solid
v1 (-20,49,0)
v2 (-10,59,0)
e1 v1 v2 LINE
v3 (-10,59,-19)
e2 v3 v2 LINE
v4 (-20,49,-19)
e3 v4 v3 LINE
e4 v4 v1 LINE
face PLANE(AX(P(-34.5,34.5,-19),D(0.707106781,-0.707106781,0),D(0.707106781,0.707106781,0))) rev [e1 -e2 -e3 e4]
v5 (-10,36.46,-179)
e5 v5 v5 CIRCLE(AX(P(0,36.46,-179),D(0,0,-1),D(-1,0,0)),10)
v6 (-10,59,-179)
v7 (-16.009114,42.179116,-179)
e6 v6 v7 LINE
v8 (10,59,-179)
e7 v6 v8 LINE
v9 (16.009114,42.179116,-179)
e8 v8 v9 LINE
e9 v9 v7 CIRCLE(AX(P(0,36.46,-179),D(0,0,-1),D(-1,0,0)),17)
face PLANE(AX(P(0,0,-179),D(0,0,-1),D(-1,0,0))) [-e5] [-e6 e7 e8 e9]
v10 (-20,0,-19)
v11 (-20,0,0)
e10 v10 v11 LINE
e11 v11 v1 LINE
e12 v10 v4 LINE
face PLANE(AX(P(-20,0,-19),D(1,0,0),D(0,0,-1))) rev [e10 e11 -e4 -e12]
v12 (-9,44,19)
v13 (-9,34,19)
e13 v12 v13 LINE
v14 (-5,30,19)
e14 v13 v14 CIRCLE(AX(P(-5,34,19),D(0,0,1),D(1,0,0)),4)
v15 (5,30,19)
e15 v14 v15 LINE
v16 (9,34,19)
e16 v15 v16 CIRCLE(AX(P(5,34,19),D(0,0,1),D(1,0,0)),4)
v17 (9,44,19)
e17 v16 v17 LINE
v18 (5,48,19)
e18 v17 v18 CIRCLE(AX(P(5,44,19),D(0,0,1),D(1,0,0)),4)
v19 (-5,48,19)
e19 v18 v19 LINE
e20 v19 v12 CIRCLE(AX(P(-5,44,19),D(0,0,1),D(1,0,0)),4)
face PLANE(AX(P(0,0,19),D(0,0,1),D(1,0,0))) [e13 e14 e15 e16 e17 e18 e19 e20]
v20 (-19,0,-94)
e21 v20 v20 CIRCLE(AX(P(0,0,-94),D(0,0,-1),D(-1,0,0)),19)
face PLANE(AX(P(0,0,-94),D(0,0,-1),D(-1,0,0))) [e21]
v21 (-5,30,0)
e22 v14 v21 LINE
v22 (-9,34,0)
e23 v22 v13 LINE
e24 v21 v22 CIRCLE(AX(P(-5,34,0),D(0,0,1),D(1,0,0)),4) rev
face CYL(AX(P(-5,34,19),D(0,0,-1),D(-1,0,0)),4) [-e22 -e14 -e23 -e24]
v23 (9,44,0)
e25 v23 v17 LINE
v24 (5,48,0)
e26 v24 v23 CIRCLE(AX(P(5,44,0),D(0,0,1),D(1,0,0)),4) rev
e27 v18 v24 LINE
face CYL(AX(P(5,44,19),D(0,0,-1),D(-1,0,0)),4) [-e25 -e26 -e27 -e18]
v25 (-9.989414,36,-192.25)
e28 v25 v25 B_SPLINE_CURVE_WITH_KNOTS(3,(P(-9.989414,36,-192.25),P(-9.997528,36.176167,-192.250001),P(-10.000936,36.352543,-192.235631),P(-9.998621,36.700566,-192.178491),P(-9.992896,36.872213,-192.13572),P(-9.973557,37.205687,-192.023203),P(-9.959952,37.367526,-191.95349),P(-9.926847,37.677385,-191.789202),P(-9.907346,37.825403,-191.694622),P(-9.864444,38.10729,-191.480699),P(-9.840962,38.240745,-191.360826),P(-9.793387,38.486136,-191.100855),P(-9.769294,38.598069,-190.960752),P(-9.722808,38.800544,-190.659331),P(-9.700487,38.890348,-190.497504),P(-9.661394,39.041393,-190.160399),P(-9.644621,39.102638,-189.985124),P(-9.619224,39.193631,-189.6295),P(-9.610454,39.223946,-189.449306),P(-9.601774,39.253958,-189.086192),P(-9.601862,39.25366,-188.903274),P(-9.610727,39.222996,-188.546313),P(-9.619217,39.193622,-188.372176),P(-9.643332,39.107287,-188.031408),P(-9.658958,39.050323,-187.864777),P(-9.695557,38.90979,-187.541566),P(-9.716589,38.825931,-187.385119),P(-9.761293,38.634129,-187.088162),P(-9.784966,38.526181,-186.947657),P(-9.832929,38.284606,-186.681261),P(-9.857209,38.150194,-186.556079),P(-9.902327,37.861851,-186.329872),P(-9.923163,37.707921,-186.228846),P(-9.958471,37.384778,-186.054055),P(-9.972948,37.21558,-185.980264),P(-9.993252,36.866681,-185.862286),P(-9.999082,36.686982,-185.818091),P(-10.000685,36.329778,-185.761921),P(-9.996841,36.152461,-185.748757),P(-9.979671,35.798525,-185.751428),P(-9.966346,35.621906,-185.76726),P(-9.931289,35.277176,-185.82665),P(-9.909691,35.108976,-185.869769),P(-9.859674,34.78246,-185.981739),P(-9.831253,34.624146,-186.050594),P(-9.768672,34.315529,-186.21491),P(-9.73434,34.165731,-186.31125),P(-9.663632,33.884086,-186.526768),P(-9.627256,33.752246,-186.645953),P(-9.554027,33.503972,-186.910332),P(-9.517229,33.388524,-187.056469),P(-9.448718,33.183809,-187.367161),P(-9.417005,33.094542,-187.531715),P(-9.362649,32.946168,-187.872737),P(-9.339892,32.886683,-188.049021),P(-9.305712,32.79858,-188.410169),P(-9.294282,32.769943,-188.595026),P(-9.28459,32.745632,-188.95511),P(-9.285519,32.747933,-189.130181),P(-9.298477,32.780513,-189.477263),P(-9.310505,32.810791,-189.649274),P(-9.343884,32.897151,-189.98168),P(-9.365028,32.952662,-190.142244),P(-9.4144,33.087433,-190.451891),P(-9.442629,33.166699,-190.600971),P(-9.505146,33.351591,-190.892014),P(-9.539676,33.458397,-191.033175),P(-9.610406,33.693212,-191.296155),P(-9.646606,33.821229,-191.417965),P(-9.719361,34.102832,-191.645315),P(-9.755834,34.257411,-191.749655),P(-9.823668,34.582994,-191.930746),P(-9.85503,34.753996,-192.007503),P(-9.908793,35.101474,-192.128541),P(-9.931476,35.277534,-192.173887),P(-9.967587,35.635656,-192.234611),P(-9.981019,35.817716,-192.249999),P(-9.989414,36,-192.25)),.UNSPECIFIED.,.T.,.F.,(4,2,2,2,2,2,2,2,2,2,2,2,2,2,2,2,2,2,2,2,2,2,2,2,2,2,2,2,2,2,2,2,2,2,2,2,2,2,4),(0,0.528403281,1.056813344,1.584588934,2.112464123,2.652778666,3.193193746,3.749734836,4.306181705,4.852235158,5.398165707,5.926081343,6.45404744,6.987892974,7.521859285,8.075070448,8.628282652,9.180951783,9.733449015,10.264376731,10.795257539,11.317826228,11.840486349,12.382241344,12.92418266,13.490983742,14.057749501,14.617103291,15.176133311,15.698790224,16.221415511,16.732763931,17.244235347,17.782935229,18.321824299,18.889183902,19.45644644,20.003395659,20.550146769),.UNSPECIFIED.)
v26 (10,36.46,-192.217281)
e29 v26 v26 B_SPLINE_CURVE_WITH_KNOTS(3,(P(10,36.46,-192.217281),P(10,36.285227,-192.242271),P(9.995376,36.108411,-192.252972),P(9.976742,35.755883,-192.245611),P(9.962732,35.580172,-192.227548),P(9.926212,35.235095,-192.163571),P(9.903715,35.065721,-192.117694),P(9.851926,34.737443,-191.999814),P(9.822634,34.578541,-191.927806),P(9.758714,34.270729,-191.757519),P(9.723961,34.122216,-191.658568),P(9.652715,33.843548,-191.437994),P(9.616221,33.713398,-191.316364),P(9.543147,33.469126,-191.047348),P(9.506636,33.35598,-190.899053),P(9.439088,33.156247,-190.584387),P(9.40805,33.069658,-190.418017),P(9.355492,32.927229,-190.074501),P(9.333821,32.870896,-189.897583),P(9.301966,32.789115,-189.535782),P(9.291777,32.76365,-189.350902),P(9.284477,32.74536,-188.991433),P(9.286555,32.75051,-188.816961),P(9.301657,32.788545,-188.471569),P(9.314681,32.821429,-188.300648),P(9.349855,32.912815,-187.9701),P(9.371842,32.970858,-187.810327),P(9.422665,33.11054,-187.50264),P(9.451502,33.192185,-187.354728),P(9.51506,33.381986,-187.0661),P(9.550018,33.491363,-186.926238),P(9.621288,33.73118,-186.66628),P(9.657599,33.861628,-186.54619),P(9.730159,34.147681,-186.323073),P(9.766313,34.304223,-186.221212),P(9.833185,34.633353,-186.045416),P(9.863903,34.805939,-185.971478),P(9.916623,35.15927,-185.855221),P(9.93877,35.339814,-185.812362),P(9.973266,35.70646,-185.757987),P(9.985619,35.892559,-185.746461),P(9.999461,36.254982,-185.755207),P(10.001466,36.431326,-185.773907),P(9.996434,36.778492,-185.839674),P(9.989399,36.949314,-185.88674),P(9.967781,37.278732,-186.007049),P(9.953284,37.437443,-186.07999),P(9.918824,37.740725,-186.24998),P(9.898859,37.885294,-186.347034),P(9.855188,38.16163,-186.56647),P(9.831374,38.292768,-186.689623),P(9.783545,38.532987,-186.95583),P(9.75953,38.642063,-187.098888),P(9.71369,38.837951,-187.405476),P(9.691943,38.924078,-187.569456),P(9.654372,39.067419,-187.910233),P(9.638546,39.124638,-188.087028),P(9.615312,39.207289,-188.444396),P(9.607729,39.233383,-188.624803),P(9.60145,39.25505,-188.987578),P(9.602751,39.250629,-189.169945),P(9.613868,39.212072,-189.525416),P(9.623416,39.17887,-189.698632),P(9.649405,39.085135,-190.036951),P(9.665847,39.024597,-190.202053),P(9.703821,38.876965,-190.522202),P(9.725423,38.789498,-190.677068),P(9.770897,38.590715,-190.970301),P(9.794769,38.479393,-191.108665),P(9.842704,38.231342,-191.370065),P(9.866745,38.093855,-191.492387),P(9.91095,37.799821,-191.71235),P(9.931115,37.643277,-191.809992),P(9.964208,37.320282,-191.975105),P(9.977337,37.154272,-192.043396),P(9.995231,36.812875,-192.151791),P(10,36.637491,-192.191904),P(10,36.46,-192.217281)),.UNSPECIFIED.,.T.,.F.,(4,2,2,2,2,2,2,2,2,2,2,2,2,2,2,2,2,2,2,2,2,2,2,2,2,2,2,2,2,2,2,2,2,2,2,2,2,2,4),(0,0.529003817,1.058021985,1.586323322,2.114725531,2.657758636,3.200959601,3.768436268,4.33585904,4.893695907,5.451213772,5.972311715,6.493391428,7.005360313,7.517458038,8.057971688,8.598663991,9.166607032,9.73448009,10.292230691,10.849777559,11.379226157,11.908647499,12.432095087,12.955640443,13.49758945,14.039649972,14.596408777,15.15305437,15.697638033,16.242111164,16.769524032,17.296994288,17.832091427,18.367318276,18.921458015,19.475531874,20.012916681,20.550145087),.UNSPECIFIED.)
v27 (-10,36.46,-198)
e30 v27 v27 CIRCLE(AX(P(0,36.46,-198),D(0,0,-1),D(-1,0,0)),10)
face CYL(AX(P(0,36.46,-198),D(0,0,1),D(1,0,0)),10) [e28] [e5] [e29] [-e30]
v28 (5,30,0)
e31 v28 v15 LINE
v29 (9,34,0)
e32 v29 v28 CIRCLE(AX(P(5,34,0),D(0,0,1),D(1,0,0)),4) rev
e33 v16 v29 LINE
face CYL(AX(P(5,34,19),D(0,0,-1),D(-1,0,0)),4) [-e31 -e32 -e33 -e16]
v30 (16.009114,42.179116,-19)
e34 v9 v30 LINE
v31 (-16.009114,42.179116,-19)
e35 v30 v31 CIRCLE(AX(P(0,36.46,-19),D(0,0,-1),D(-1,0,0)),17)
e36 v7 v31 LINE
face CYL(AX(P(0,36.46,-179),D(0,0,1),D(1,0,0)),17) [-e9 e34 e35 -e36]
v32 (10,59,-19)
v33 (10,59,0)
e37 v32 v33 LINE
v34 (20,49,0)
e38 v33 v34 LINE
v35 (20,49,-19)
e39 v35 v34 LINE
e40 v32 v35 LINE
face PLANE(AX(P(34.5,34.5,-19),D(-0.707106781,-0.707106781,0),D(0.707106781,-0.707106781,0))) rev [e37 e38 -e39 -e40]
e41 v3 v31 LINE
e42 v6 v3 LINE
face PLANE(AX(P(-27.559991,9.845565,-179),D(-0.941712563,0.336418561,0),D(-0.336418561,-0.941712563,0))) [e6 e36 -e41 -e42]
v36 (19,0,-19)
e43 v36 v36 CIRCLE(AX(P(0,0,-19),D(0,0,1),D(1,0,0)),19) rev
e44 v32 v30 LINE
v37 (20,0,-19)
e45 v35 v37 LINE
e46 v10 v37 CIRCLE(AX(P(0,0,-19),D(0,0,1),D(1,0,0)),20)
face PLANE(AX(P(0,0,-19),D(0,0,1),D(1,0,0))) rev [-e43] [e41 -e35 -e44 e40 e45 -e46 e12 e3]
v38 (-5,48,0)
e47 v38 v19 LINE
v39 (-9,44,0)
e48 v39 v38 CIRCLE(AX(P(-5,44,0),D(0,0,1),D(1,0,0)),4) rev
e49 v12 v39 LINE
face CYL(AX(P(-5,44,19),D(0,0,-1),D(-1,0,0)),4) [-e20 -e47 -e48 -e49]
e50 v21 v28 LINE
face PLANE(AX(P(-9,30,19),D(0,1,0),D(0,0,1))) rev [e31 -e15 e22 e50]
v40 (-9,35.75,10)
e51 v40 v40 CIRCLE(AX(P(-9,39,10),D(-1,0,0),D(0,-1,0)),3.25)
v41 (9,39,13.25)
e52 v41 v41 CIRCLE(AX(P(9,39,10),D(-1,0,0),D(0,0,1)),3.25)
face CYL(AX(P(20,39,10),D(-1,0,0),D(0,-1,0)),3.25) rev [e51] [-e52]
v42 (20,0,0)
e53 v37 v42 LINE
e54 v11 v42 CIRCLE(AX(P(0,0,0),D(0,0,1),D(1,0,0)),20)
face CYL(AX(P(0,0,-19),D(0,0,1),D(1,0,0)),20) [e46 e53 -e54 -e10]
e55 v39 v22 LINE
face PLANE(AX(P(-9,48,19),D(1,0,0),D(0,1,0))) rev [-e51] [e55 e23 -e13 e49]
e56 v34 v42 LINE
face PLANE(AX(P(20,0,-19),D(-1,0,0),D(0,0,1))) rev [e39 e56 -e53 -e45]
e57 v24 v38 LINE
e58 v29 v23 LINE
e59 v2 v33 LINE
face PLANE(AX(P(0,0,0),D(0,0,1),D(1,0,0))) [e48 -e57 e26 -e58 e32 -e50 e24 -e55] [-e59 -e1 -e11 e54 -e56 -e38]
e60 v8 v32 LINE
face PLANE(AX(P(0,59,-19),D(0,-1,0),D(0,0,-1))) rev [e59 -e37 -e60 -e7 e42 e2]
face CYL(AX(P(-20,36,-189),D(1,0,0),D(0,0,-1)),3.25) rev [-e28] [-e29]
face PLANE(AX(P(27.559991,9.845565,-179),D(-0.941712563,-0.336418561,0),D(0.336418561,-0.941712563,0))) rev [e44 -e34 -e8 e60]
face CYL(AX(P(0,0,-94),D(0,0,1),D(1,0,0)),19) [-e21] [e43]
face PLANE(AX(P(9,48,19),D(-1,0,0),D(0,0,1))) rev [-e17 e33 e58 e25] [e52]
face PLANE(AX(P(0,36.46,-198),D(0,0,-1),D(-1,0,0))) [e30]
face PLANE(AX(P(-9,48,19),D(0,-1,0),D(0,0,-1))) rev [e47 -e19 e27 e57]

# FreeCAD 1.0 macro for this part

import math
import FreeCAD as App
import Part
import Sketcher


def edges_at(feature, points):
    """Names of the edges that pass closest to the given points."""
    edges = feature.Shape.Edges
    near = lambda p: min(range(len(edges)), key=lambda i: edges[i].distToShape(Part.Vertex(*p))[0])
    return sorted({f"Edge{near(p) + 1}" for p in points})


def add_polygon(sketch, points):
    """Adds a closed chain of lines whose ends are joined by coincident constraints."""
    first, n = sketch.GeometryCount, len(points)
    for a, b in zip(points, points[1:] + points[:1]):
        sketch.addGeometry(Part.LineSegment(App.Vector(*a, 0), App.Vector(*b, 0)), False)
    for i in range(n):
        sketch.addConstraint(Sketcher.Constraint("Coincident", first + i, 2, first + (i + 1) % n, 1))

doc = App.newDocument("Part")
body = doc.addObject("PartDesign::Body", "Body")

# Sketch on XY plane
sketch1 = body.newObject("Sketcher::SketchObject", "Sketch")
sketch1.AttachmentSupport = (doc.getObject("XY_Plane"), [""])
sketch1.MapMode = "FlatFace"
sketch1.addGeometry([
    Part.LineSegment(App.Vector(-20, 49, 0), App.Vector(-20, 0, 0)),  # 0
    Part.ArcOfCircle(Part.Circle(App.Vector(0, 0, 0), App.Vector(0, 0, 1), 20), math.radians(180), math.radians(360)),  # 1
    Part.LineSegment(App.Vector(20, 0, 0), App.Vector(20, 49, 0)),  # 2
    Part.LineSegment(App.Vector(20, 49, 0), App.Vector(10, 59, 0)),  # 3
    Part.LineSegment(App.Vector(10, 59, 0), App.Vector(-10, 59, 0)),  # 4
    Part.LineSegment(App.Vector(-10, 59, 0), App.Vector(-20, 49, 0)),  # 5
], False)
sketch1.addConstraint([
    Sketcher.Constraint("Tangent", 0, 2, 1, 1),
    Sketcher.Constraint("Tangent", 1, 2, 2, 1),
    Sketcher.Constraint("Coincident", 2, 2, 3, 1),
    Sketcher.Constraint("Coincident", 3, 2, 4, 1),
    Sketcher.Constraint("Coincident", 4, 2, 5, 1),
    Sketcher.Constraint("Coincident", 5, 2, 0, 1),
    Sketcher.Constraint("Vertical", 0),
    Sketcher.Constraint("Vertical", 2),
    Sketcher.Constraint("Horizontal", 4),
    Sketcher.Constraint("Coincident", 1, 3, -1, 1),
    Sketcher.Constraint("Perpendicular", 3, 5),
    Sketcher.Constraint("Horizontal", 2, 2, 5, 2),
    Sketcher.Constraint("Equal", 3, 5),
    Sketcher.Constraint("Radius", 1, 20.0),
    Sketcher.Constraint("DistanceX", 4, 2, 4, 1, 20.0),
    Sketcher.Constraint("DistanceY", 0, 2, 0, 1, 49.0),
])
pad1 = body.newObject("PartDesign::Pad", "Pad")
pad1.Profile = sketch1
pad1.Length = 19
pad1.Reversed = True

# Sketch on XY plane
sketch2 = body.newObject("Sketcher::SketchObject", "Sketch001")
sketch2.AttachmentSupport = (doc.getObject("XY_Plane"), [""])
sketch2.MapMode = "FlatFace"
sketch2.AttachmentOffset = App.Placement(App.Vector(0, 0, -19), App.Rotation())
sketch2.addGeometry([
    Part.LineSegment(App.Vector(-10, 59, 0), App.Vector(10, 59, 0)),
    Part.LineSegment(App.Vector(10, 59, 0), App.Vector(16, 42, 0)),
    Part.ArcOfCircle(Part.Circle(App.Vector(0, 36, 0), App.Vector(0, 0, 1), 17), math.radians(160), math.radians(380)),
    Part.LineSegment(App.Vector(-16, 42, 0), App.Vector(-10, 59, 0)),
], False)
sketch2.addConstraint([
    Sketcher.Constraint("Coincident", 0, 2, 1, 1),
    Sketcher.Constraint("Tangent", 1, 2, 2, 2),
    Sketcher.Constraint("Tangent", 2, 1, 3, 1),
    Sketcher.Constraint("Coincident", 3, 2, 0, 1),
    Sketcher.Constraint("Horizontal", 0),
    Sketcher.Constraint("Symmetric", 1, 2, 2, 1, -2),
    Sketcher.Constraint("Radius", 2, 17.0),
    Sketcher.Constraint("DistanceX", 0, 1, 0, 2, 20.0),
    Sketcher.Constraint("DistanceY", -1, 1, 0, 2, 59.0),
    Sketcher.Constraint("DistanceY", -1, 1, 2, 3, 36.46),
])
pad2 = body.newObject("PartDesign::Pad", "Pad001")
pad2.Profile = sketch2
pad2.Length = 160
pad2.Reversed = True

# Sketch on XY plane
sketch3 = body.newObject("Sketcher::SketchObject", "Sketch002")
sketch3.AttachmentSupport = (doc.getObject("XY_Plane"), [""])
sketch3.MapMode = "FlatFace"
sketch3.AttachmentOffset = App.Placement(App.Vector(0, 0, -179), App.Rotation())
sketch3.addGeometry(Part.Circle(App.Vector(0, 36, 0), App.Vector(0, 0, 1), 10), False)
sketch3.addConstraint([
    Sketcher.Constraint("PointOnObject", 0, 3, -2),
    Sketcher.Constraint("Diameter", 0, 20.0),
    Sketcher.Constraint("DistanceY", -1, 1, 0, 3, 36.46),
])
pad3 = body.newObject("PartDesign::Pad", "Pad002")
pad3.Profile = sketch3
pad3.Length = 19
pad3.Reversed = True

# Sketch on YZ plane
sketch4 = body.newObject("Sketcher::SketchObject", "Sketch003")
sketch4.AttachmentSupport = (doc.getObject("YZ_Plane"), [""])
sketch4.MapMode = "FlatFace"
sketch4.addGeometry(Part.Circle(App.Vector(36, -189, 0), App.Vector(0, 0, 1), 3.2), False)
sketch4.addConstraint([
    Sketcher.Constraint("Diameter", 0, 6.5),
    Sketcher.Constraint("DistanceX", -1, 1, 0, 3, 36.0),
    Sketcher.Constraint("DistanceY", 0, 3, -1, 1, 189.0),
])
pocket1 = body.newObject("PartDesign::Pocket", "Pocket")
pocket1.Profile = sketch4
pocket1.Type = "ThroughAll"
pocket1.Midplane = True

# Sketch on XY plane
sketch5 = body.newObject("Sketcher::SketchObject", "Sketch004")
sketch5.AttachmentSupport = (doc.getObject("XY_Plane"), [""])
sketch5.MapMode = "FlatFace"
sketch5.AttachmentOffset = App.Placement(App.Vector(0, 0, -19), App.Rotation())
sketch5.addGeometry(Part.Circle(App.Vector(0, 0, 0), App.Vector(0, 0, 1), 19), False)
sketch5.addConstraint([
    Sketcher.Constraint("Coincident", 0, 3, -1, 1),
    Sketcher.Constraint("Diameter", 0, 38.0),
])
pad4 = body.newObject("PartDesign::Pad", "Pad003")
pad4.Profile = sketch5
pad4.Length = 75
pad4.Reversed = True

# Sketch on XY plane
sketch6 = body.newObject("Sketcher::SketchObject", "Sketch005")
sketch6.AttachmentSupport = (doc.getObject("XY_Plane"), [""])
sketch6.MapMode = "FlatFace"
add_polygon(sketch6, [(-9, 48), (-9, 30), (9, 30), (9, 48)])  # lines 0-3
sketch6.addConstraint([
    Sketcher.Constraint("Vertical", 0),
    Sketcher.Constraint("Horizontal", 1),
    Sketcher.Constraint("Vertical", 2),
    Sketcher.Constraint("Horizontal", 3),
    Sketcher.Constraint("Equal", 3, 0),
    Sketcher.Constraint("DistanceX", 1, 1, 1, 2, 18.0),
    Sketcher.Constraint("DistanceX", 0, 2, -1, 1, 9.0),
    Sketcher.Constraint("DistanceY", -1, 1, 0, 2, 30.0),
])
pad5 = body.newObject("PartDesign::Pad", "Pad004")
pad5.Profile = sketch6
pad5.Length = 19
doc.recompute()

fillet = body.newObject("PartDesign::Fillet", "Fillet")
fillet.Base = (pad5, edges_at(pad5, [
    (9, 30, 9.5),
    (9, 48, 9.5),
    (-9, 48, 9.5),
    (-9, 30, 9.5),
]))
fillet.Radius = 4

# Sketch on YZ plane
sketch7 = body.newObject("Sketcher::SketchObject", "Sketch006")
sketch7.AttachmentSupport = (doc.getObject("YZ_Plane"), [""])
sketch7.MapMode = "FlatFace"
sketch7.AttachmentOffset = App.Placement(App.Vector(0, 0, -9), App.Rotation())
sketch7.addGeometry(Part.Circle(App.Vector(39, 10, 0), App.Vector(0, 0, 1), 3.2), False)
sketch7.addConstraint([
    Sketcher.Constraint("Diameter", 0, 6.5),
    Sketcher.Constraint("DistanceX", -1, 1, 0, 3, 39.0),
    Sketcher.Constraint("DistanceY", -1, 1, 0, 3, 10.0),
])
pocket2 = body.newObject("PartDesign::Pocket", "Pocket001")
pocket2.Profile = sketch7
pocket2.Type = "ThroughAll"
pocket2.Reversed = True

doc.recompute()
